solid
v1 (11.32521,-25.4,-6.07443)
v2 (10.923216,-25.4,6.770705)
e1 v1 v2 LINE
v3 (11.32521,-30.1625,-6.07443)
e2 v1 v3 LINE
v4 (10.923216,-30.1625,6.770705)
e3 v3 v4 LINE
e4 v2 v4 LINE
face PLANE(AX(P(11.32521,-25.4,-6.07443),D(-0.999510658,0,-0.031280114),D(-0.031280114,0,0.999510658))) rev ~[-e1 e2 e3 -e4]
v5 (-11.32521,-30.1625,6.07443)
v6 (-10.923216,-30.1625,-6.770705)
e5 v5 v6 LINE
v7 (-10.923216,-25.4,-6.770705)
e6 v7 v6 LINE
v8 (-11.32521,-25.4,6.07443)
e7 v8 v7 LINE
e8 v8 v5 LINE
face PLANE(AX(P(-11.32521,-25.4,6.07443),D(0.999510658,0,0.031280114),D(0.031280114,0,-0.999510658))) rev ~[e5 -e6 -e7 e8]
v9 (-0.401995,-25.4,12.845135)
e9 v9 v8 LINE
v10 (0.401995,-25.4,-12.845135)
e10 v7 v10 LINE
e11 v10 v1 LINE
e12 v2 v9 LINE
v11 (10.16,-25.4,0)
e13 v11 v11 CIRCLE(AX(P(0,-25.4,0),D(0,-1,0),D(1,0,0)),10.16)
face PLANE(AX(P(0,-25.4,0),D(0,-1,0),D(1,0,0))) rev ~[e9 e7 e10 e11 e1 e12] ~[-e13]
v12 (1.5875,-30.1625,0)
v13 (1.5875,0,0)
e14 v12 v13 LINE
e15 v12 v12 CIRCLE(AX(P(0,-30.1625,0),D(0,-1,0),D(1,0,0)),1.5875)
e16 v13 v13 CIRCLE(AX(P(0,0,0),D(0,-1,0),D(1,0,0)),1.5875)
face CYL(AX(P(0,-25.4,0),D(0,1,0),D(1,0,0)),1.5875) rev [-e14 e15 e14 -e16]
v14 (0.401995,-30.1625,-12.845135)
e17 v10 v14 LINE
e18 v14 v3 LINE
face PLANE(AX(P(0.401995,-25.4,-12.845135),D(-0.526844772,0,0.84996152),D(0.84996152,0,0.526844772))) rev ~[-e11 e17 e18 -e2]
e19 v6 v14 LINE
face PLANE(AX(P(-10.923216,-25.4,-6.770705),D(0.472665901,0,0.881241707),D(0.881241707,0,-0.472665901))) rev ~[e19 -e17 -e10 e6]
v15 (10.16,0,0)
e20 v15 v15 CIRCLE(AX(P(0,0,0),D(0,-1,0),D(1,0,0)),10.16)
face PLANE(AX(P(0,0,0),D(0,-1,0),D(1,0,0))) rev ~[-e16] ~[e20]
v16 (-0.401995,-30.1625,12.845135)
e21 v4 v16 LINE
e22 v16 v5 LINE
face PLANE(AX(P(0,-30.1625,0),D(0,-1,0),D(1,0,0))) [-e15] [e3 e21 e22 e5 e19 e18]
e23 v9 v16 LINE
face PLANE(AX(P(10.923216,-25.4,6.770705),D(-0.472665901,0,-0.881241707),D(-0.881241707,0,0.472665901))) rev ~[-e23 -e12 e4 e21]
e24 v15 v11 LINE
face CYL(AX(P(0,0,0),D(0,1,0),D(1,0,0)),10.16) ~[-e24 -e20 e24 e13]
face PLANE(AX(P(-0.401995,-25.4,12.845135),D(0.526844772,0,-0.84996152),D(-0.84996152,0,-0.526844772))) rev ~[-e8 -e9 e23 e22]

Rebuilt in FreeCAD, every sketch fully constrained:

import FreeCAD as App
import Part
import Sketcher

V = App.Vector
Q = App.Units.Quantity


def add_polygon(sketch, points):
    """Adds a closed chain of lines whose ends are joined by coincident constraints."""
    first, n = sketch.GeometryCount, len(points)
    for a, b in zip(points, points[1:] + points[:1]):
        sketch.addGeometry(Part.LineSegment(App.Vector(*a, 0), App.Vector(*b, 0)), False)
    for i in range(n):
        sketch.addConstraint(Sketcher.Constraint("Coincident", first + i, 2, first + (i + 1) % n, 1))

doc = App.newDocument("Part")
params = doc.addObject("Spreadsheet::Sheet", "Params")
for row, (alias, value) in enumerate([
    ("sketch1_diameter", "0.8 in"),
    ("sketch1_diameter2", "0.125 in"),
    ("pad1_length", "1 in"),
    ("sketch2_diameter", "0.125 in"),
    ("pad2_length", "0.1875 in"),
], start=1):
    params.set(f"A{row}", alias)
    params.set(f"B{row}", "=" + value)
    params.setAlias(f"B{row}", alias)

body = doc.addObject("PartDesign::Body", "Body")

sketch1 = body.newObject("Sketcher::SketchObject", "Sketch")
sketch1.AttachmentSupport = (doc.getObject("XZ_Plane"), [""])
sketch1.MapMode = "FlatFace"
sketch1.addGeometry([
    Part.Circle(V(0, 0, 0), V(0, 0, 1), 10.16),
    Part.Circle(V(0, 0, 0), V(0, 0, 1), 1.5875),
], False)
sketch1.addConstraint([
    Sketcher.Constraint("Coincident", 0, 3, -1, 1),
    Sketcher.Constraint("Coincident", 1, 3, -1, 1),
    Sketcher.Constraint("Diameter", 0, Q("0.8 in")),
    Sketcher.Constraint("Diameter", 1, Q("0.125 in")),
])
sketch1.setExpression("Constraints[2]", "Params.sketch1_diameter")
sketch1.setExpression("Constraints[3]", "Params.sketch1_diameter2")
pad1 = body.newObject("PartDesign::Pad", "Pad")
pad1.Profile = sketch1
pad1.setExpression("Length", "Params.pad1_length")

sketch2 = body.newObject("Sketcher::SketchObject", "Sketch001")
sketch2.AttachmentSupport = (doc.getObject("XZ_Plane"), [""])
sketch2.MapMode = "FlatFace"
sketch2.AttachmentOffset = App.Placement(V(0, 0, 1 * 25.4), App.Rotation())
add_polygon(sketch2, [(10.923216, 6.770705), (-0.401995, 12.845135), (-11.32521, 6.07443), (-10.923216, -6.770705), (0.401995, -12.845135), (11.32521, -6.07443)])
sketch2.addGeometry(Part.Circle(V(0, 0, 0), V(0, 0, 1), 1.5875), False)
sketch2.addConstraint([
    Sketcher.Constraint("Coincident", 6, 3, -1, 1),
    Sketcher.Constraint("Symmetric", 0, 2, 3, 2, -1, 1),
    Sketcher.Constraint("Symmetric", 1, 2, 4, 2, -1, 1),
    Sketcher.Constraint("Symmetric", 2, 2, 5, 2, -1, 1),
    Sketcher.Constraint("Equal", 0, 1),
    Sketcher.Constraint("Equal", 1, 2),
    Sketcher.Constraint("Diameter", 6, Q("0.125 in")),
    Sketcher.Constraint("DistanceX", 1, 2, -1, 1, Q("11.32521 mm")),
    Sketcher.Constraint("DistanceY", -1, 1, 1, 2, Q("6.07443 mm")),
    Sketcher.Constraint("DistanceX", 2, 2, 0, 2, Q("10.521221 mm")),
    Sketcher.Constraint("DistanceY", 2, 2, 0, 2, Q("19.61584 mm")),
])
sketch2.setExpression("Constraints[12]", "Params.sketch2_diameter")
pad2 = body.newObject("PartDesign::Pad", "Pad001")
pad2.Profile = sketch2
pad2.setExpression("Length", "Params.pad2_length")

doc.recompute()
